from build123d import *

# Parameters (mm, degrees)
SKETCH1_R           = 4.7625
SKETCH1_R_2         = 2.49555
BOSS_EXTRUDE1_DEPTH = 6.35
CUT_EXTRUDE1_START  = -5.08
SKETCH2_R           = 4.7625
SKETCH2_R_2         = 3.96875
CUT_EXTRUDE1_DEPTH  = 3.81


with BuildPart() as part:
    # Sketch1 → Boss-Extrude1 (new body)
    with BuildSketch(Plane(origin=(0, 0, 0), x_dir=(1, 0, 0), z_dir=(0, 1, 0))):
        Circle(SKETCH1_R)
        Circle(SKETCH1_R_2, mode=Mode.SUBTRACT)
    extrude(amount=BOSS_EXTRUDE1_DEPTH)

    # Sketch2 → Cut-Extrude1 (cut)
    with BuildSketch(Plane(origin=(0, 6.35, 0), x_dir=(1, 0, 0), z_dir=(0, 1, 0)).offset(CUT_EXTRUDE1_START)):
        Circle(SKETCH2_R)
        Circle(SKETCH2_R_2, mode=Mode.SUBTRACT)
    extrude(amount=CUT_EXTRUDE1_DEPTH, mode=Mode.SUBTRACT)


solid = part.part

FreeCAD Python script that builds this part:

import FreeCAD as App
import Part
import Sketcher

V = App.Vector
Q = App.Units.Quantity

doc = App.newDocument("Part")
body = doc.addObject("PartDesign::Body", "Body")

sketch1 = body.newObject("Sketcher::SketchObject", "Sketch")
sketch1.AttachmentSupport = (doc.getObject("XZ_Plane"), [""])
sketch1.MapMode = "FlatFace"
sketch1.addGeometry(Part.Circle(V(0, 0, 0), V(0, 0, 1), 4.8), False)
sketch1.addGeometry(Part.Circle(V(0, 0, 0), V(0, 0, 1), 2.5), False)
sketch1.addConstraint(Sketcher.Constraint("Coincident", 0, 3, -1, 1))
sketch1.addConstraint(Sketcher.Constraint("Coincident", 1, 3, -1, 1))
sketch1.addConstraint(Sketcher.Constraint("Diameter", 0, Q("0.375 in")))
sketch1.addConstraint(Sketcher.Constraint("Diameter", 1, Q("0.1965 in")))
pad1 = body.newObject("PartDesign::Pad", "Pad")
pad1.Profile = sketch1
pad1.Length = Q("0.25 in")
pad1.Reversed = True

sketch2 = body.newObject("Sketcher::SketchObject", "Sketch001")
sketch2.AttachmentSupport = (doc.getObject("XZ_Plane"), [""])
sketch2.MapMode = "FlatFace"
sketch2.AttachmentOffset = App.Placement(V(0, 0, -0.05 * 25.4), App.Rotation())
sketch2.addGeometry(Part.Circle(V(0, 0, 0), V(0, 0, 1), 4.8), False)
sketch2.addGeometry(Part.Circle(V(0, 0, 0), V(0, 0, 1), 4), False)
sketch2.addConstraint(Sketcher.Constraint("Coincident", 0, 3, -1, 1))
sketch2.addConstraint(Sketcher.Constraint("Coincident", 1, 3, -1, 1))
sketch2.addConstraint(Sketcher.Constraint("Diameter", 0, Q("0.375 in")))
sketch2.addConstraint(Sketcher.Constraint("Diameter", 1, Q("0.3125 in")))
pocket1 = body.newObject("PartDesign::Pocket", "Pocket")
pocket1.Profile = sketch2
pocket1.Length = Q("0.15 in")

doc.recompute()
